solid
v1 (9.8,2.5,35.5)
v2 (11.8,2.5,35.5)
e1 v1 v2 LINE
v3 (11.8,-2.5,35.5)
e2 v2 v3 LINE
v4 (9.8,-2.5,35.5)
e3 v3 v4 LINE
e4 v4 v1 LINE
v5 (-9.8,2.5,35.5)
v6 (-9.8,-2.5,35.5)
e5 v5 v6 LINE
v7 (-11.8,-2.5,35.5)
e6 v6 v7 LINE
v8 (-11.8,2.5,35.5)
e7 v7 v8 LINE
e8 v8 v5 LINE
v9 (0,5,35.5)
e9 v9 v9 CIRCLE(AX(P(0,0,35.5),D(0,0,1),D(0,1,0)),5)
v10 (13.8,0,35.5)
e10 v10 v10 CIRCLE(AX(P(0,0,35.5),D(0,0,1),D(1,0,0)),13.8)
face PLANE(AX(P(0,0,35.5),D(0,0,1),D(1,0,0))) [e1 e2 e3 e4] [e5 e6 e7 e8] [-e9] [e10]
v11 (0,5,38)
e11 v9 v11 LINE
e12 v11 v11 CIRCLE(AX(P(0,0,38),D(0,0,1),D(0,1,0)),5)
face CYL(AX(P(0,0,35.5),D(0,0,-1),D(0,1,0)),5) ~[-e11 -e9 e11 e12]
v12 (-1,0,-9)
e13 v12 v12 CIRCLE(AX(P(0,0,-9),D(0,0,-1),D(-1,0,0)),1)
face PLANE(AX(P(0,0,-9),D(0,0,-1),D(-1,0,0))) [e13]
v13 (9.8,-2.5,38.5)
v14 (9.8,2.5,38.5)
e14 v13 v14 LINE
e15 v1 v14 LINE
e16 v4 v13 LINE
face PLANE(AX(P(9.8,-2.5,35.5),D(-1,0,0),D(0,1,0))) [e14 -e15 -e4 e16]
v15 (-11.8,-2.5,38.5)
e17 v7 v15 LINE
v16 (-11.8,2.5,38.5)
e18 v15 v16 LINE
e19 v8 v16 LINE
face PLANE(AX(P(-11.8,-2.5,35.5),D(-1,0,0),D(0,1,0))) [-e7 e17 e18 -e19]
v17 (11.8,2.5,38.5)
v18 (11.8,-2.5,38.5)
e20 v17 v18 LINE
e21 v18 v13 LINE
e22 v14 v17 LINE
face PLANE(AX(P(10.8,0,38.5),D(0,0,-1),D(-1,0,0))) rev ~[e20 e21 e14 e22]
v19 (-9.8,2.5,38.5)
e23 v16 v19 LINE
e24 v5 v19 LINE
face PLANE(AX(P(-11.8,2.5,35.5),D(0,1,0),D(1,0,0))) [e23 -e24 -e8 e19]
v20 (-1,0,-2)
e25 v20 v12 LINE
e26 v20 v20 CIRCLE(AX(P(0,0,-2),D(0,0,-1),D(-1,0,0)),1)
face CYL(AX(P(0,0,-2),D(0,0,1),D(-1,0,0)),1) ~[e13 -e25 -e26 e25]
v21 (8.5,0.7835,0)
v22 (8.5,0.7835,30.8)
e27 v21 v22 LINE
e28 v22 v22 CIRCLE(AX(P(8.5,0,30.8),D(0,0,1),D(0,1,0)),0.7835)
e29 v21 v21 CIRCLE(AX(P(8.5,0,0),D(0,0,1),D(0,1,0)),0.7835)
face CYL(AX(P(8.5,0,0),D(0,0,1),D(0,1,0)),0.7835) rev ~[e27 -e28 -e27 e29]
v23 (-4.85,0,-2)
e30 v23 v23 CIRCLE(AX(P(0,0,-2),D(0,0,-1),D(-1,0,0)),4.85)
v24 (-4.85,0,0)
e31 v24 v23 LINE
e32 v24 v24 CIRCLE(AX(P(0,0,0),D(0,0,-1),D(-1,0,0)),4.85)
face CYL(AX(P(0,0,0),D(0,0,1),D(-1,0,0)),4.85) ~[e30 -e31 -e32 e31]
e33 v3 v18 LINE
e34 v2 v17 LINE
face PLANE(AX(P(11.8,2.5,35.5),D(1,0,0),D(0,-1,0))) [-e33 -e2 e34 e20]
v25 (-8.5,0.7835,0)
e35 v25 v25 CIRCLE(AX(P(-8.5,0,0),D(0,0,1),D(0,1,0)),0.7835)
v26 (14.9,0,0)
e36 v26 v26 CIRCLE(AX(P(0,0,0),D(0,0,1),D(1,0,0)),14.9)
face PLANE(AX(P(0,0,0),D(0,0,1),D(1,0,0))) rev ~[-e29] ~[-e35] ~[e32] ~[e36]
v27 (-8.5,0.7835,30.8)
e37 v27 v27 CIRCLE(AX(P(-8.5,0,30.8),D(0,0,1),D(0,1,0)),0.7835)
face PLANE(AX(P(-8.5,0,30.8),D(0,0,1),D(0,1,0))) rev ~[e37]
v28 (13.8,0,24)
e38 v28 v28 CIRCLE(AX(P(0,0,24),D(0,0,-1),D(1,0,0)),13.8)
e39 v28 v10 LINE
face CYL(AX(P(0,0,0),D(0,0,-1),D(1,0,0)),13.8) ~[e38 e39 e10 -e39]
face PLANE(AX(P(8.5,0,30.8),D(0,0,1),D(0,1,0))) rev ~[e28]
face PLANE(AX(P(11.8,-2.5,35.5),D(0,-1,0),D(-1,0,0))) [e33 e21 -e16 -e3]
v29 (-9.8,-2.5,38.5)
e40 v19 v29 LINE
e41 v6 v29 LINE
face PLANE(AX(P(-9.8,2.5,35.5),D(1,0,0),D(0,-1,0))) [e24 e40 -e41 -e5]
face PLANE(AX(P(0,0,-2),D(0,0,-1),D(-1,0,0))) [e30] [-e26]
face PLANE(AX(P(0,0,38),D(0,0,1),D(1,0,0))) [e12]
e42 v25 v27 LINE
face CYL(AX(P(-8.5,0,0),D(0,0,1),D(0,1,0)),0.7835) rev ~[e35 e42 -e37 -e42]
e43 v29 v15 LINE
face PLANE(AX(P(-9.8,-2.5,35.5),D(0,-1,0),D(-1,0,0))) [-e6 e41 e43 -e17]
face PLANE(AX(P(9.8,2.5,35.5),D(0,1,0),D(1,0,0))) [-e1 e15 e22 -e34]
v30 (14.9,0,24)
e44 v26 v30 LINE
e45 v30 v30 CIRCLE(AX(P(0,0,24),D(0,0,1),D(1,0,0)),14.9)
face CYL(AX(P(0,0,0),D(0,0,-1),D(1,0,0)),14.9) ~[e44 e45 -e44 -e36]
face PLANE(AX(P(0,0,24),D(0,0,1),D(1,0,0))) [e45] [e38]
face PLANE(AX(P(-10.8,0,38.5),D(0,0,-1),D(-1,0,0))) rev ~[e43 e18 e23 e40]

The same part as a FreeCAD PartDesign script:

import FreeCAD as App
import Part
import Sketcher
from FreeCAD import Vector
Q = App.Units.Quantity


def add_polygon(sketch, points):
    """Adds a closed chain of lines whose ends are joined by coincident constraints."""
    first, n = sketch.GeometryCount, len(points)
    for a, b in zip(points, points[1:] + points[:1]):
        sketch.addGeometry(Part.LineSegment(App.Vector(*a, 0), App.Vector(*b, 0)), False)
    for i in range(n):
        sketch.addConstraint(Sketcher.Constraint("Coincident", first + i, 2, first + (i + 1) % n, 1))

doc = App.newDocument("Part")
body = doc.addObject("PartDesign::Body", "Body")

sketch1 = body.newObject("Sketcher::SketchObject", "Sketch")
sketch1.AttachmentSupport = (doc.getObject("XY_Plane"), [""])
sketch1.MapMode = "FlatFace"
sketch1.addGeometry(Part.Circle(Vector(0, 0, 0), Vector(0, 0, 1), 14), False)
sketch1.addConstraint([
    Sketcher.Constraint("Coincident", 0, 3, -1, 1),
    Sketcher.Constraint("Diameter", 0, Q("27.6 mm")),
])
pad1 = body.newObject("PartDesign::Pad", "Pad")
pad1.Profile = sketch1
pad1.Length = 35.5

sketch2 = body.newObject("Sketcher::SketchObject", "Sketch001")
sketch2.AttachmentSupport = (doc.getObject("XY_Plane"), [""])
sketch2.MapMode = "FlatFace"
sketch2.addGeometry(Part.Circle(Vector(0, 0, 0), Vector(0, 0, 1), 15), False)
sketch2.addConstraint([
    Sketcher.Constraint("Coincident", 0, 3, -1, 1),
    Sketcher.Constraint("Diameter", 0, Q("29.8 mm")),
])
pad2 = body.newObject("PartDesign::Pad", "Pad001")
pad2.Profile = sketch2
pad2.Length = 24

sketch3 = body.newObject("Sketcher::SketchObject", "Sketch002")
sketch3.AttachmentSupport = (doc.getObject("XY_Plane"), [""])
sketch3.MapMode = "FlatFace"
sketch3.addGeometry(Part.Circle(Vector(0, 0, 0), Vector(0, 0, 1), 4.8), False)
sketch3.addConstraint([
    Sketcher.Constraint("Coincident", 0, 3, -1, 1),
    Sketcher.Constraint("Diameter", 0, Q("9.7 mm")),
])
pad3 = body.newObject("PartDesign::Pad", "Pad002")
pad3.Profile = sketch3
pad3.Length = 2
pad3.Reversed = True

sketch4 = body.newObject("Sketcher::SketchObject", "Sketch003")
sketch4.AttachmentSupport = (doc.getObject("XY_Plane"), [""])
sketch4.MapMode = "FlatFace"
sketch4.AttachmentOffset = App.Placement(Vector(0, 0, -2), App.Rotation())
sketch4.addGeometry(Part.Circle(Vector(0, 0, 0), Vector(0, 0, 1), 1), False)
sketch4.addConstraint([
    Sketcher.Constraint("Coincident", 0, 3, -1, 1),
    Sketcher.Constraint("Diameter", 0, Q("2 mm")),
])
pad4 = body.newObject("PartDesign::Pad", "Pad003")
pad4.Profile = sketch4
pad4.Length = 7
pad4.Reversed = True

sketch5 = body.newObject("Sketcher::SketchObject", "Sketch004")
sketch5.AttachmentSupport = (doc.getObject("XY_Plane"), [""])
sketch5.MapMode = "FlatFace"
sketch5.addGeometry(Part.Circle(Vector(8.5, 0, 0), Vector(0, 0, 1), 0.8), False)
sketch5.addConstraint([
    Sketcher.Constraint("PointOnObject", 0, 3, -1),
    Sketcher.Constraint("Diameter", 0, Q("1.567 mm")),
    Sketcher.Constraint("DistanceX", -1, 1, 0, 3, Q("8.5 mm")),
])
doc.recompute()
hole = body.newObject("PartDesign::Hole", "Hole")
hole.Profile = sketch5
hole.ThreadType = "None"
hole.Diameter = 1.567
hole.DepthType = "Dimension"
hole.Depth = 30.8
hole.DrillPoint = "Flat"
hole.Reversed = True

sketch6 = body.newObject("Sketcher::SketchObject", "Sketch005")
sketch6.AttachmentSupport = (doc.getObject("XY_Plane"), [""])
sketch6.MapMode = "FlatFace"
sketch6.addGeometry(Part.Circle(Vector(-8.5, 0, 0), Vector(0, 0, 1), 0.8), False)
sketch6.addConstraint([
    Sketcher.Constraint("PointOnObject", 0, 3, -1),
    Sketcher.Constraint("Diameter", 0, Q("1.567 mm")),
    Sketcher.Constraint("DistanceX", 0, 3, -1, 1, Q("8.5 mm")),
])
doc.recompute()
hole2 = body.newObject("PartDesign::Hole", "Hole001")
hole2.Profile = sketch6
hole2.ThreadType = "None"
hole2.Diameter = 1.567
hole2.DepthType = "Dimension"
hole2.Depth = 30.8
hole2.DrillPoint = "Flat"
hole2.Reversed = True

sketch7 = body.newObject("Sketcher::SketchObject", "Sketch006")
sketch7.AttachmentSupport = (doc.getObject("XY_Plane"), [""])
sketch7.MapMode = "FlatFace"
sketch7.AttachmentOffset = App.Placement(Vector(0, 0, 35.5), App.Rotation())
sketch7.addGeometry(Part.Circle(Vector(0, 0, 0), Vector(0, 0, 1), 5), False)
sketch7.addConstraint([
    Sketcher.Constraint("Coincident", 0, 3, -1, 1),
    Sketcher.Constraint("Diameter", 0, Q("10 mm")),
])
pad5 = body.newObject("PartDesign::Pad", "Pad004")
pad5.Profile = sketch7
pad5.Length = 2.5

sketch8 = body.newObject("Sketcher::SketchObject", "Sketch007")
sketch8.AttachmentSupport = (doc.getObject("XY_Plane"), [""])
sketch8.MapMode = "FlatFace"
sketch8.AttachmentOffset = App.Placement(Vector(0, 0, 35.5), App.Rotation())
add_polygon(sketch8, [(9.8, -2.5), (11.8, -2.5), (11.8, 2.5), (9.8, 2.5)])
add_polygon(sketch8, [(-11.8, -2.5), (-9.8, -2.5), (-9.8, 2.5), (-11.8, 2.5)])
sketch8.addConstraint([
    Sketcher.Constraint("Horizontal", 0),
    Sketcher.Constraint("Vertical", 1),
    Sketcher.Constraint("Horizontal", 2),
    Sketcher.Constraint("Vertical", 3),
    Sketcher.Constraint("Horizontal", 4),
    Sketcher.Constraint("Vertical", 5),
    Sketcher.Constraint("Horizontal", 6),
    Sketcher.Constraint("Vertical", 7),
    Sketcher.Constraint("Symmetric", 2, 2, 4, 2, -1, 1),
    Sketcher.Constraint("Symmetric", 0, 2, 6, 2, -1, 1),
    Sketcher.Constraint("Horizontal", 3, 2, 4, 2),
    Sketcher.Constraint("DistanceX", -1, 1, 0, 2, Q("11.8 mm")),
    Sketcher.Constraint("DistanceX", -1, 1, 2, 2, Q("9.8 mm")),
    Sketcher.Constraint("DistanceY", 1, 1, 1, 2, Q("5 mm")),
])
pad6 = body.newObject("PartDesign::Pad", "Pad005")
pad6.Profile = sketch8
pad6.Length = 3

doc.recompute()
